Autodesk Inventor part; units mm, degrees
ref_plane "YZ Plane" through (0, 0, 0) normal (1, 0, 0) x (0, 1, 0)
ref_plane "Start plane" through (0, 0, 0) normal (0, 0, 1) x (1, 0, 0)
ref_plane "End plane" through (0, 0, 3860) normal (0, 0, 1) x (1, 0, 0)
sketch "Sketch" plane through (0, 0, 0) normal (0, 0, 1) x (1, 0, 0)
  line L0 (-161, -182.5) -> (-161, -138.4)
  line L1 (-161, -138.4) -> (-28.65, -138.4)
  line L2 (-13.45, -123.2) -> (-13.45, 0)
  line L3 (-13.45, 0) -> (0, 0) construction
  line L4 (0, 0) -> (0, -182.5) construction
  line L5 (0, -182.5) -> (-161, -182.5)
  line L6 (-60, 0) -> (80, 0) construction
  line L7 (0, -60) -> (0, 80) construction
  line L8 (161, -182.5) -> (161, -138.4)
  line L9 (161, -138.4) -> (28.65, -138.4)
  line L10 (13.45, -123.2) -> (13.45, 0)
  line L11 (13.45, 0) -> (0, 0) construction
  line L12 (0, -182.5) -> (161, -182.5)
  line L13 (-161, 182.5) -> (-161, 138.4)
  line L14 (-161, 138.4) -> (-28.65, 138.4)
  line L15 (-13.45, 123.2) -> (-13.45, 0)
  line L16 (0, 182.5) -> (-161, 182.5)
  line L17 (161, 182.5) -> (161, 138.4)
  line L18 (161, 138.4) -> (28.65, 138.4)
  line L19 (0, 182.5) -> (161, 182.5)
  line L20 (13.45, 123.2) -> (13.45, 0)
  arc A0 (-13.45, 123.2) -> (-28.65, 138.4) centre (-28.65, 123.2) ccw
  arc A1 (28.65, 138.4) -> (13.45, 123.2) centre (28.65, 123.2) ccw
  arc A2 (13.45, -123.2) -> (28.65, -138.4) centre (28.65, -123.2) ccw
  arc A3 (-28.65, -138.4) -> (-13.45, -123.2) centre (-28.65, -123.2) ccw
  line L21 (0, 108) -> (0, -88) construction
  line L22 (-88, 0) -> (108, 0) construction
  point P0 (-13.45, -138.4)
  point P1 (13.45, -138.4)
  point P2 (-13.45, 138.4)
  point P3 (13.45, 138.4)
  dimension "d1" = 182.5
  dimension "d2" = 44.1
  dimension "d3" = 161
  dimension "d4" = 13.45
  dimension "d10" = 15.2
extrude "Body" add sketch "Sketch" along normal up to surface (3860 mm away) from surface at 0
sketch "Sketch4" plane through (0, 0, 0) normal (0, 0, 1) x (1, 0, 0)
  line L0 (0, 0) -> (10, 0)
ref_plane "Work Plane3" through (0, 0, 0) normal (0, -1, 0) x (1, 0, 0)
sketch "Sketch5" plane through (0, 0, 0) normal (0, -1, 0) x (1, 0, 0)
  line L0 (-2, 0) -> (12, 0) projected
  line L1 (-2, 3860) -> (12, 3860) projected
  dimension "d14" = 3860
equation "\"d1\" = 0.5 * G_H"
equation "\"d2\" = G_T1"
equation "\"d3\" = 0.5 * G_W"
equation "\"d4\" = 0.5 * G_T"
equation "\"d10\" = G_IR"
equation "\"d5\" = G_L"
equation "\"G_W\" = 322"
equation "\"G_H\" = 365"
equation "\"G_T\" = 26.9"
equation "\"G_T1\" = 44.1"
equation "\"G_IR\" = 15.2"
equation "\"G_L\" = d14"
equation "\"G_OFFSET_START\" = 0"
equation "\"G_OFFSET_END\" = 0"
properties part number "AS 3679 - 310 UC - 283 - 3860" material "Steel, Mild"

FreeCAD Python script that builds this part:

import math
import FreeCAD as App
import Part
import Sketcher
Q = App.Units.Quantity

doc = App.newDocument("Part")
params = doc.addObject("Spreadsheet::Sheet", "Params")
for row, (alias, value) in enumerate([
    ("sketch1_radius", "15.2 mm"),
    ("sketch1_height", "44.1 mm"),
    ("pad1_length", "3860 mm"),
], start=1):
    params.set(f"A{row}", alias)
    params.set(f"B{row}", "=" + value)
    params.setAlias(f"B{row}", alias)

body = doc.addObject("PartDesign::Body", "Body")

# Sketch on XY plane
sketch1 = body.newObject("Sketcher::SketchObject", "Sketch")
sketch1.AttachmentSupport = (doc.getObject("XY_Plane"), [""])
sketch1.MapMode = "FlatFace"
sketch1.addGeometry([
    Part.LineSegment(App.Vector(-161, -138, 0), App.Vector(-161, -182, 0)),  # 0
    Part.LineSegment(App.Vector(-161, -182, 0), App.Vector(161, -182, 0)),  # 1
    Part.LineSegment(App.Vector(161, -182, 0), App.Vector(161, -138, 0)),  # 2
    Part.LineSegment(App.Vector(161, -138, 0), App.Vector(29, -138, 0)),  # 3
    Part.ArcOfCircle(Part.Circle(App.Vector(29, -123, 0), App.Vector(0, 0, 1), 15), math.radians(180), math.radians(270)),  # 4
    Part.LineSegment(App.Vector(13, -123, 0), App.Vector(13, 123, 0)),  # 5
    Part.ArcOfCircle(Part.Circle(App.Vector(29, 123, 0), App.Vector(0, 0, 1), 15), math.radians(90), math.radians(180)),  # 6
    Part.LineSegment(App.Vector(29, 138, 0), App.Vector(161, 138, 0)),  # 7
    Part.LineSegment(App.Vector(161, 138, 0), App.Vector(161, 182, 0)),  # 8
    Part.LineSegment(App.Vector(161, 182, 0), App.Vector(-161, 182, 0)),  # 9
    Part.LineSegment(App.Vector(-161, 182, 0), App.Vector(-161, 138, 0)),  # 10
    Part.LineSegment(App.Vector(-161, 138, 0), App.Vector(-29, 138, 0)),  # 11
    Part.ArcOfCircle(Part.Circle(App.Vector(-29, 123, 0), App.Vector(0, 0, 1), 15), math.radians(0), math.radians(90)),  # 12
    Part.LineSegment(App.Vector(-13, 123, 0), App.Vector(-13, -123, 0)),  # 13
    Part.ArcOfCircle(Part.Circle(App.Vector(-29, -123, 0), App.Vector(0, 0, 1), 15), math.radians(-90), math.radians(0)),  # 14
    Part.LineSegment(App.Vector(-29, -138, 0), App.Vector(-161, -138, 0)),  # 15
], False)
sketch1.addConstraint([
    Sketcher.Constraint("Coincident", 0, 2, 1, 1),
    Sketcher.Constraint("Coincident", 1, 2, 2, 1),
    Sketcher.Constraint("Coincident", 2, 2, 3, 1),
    Sketcher.Constraint("Tangent", 3, 2, 4, 2),
    Sketcher.Constraint("Tangent", 4, 1, 5, 1),
    Sketcher.Constraint("Tangent", 5, 2, 6, 2),
    Sketcher.Constraint("Tangent", 6, 1, 7, 1),
    Sketcher.Constraint("Coincident", 7, 2, 8, 1),
    Sketcher.Constraint("Coincident", 8, 2, 9, 1),
    Sketcher.Constraint("Coincident", 9, 2, 10, 1),
    Sketcher.Constraint("Coincident", 10, 2, 11, 1),
    Sketcher.Constraint("Tangent", 11, 2, 12, 2),
    Sketcher.Constraint("Tangent", 12, 1, 13, 1),
    Sketcher.Constraint("Tangent", 13, 2, 14, 2),
    Sketcher.Constraint("Tangent", 14, 1, 15, 1),
    Sketcher.Constraint("Coincident", 15, 2, 0, 1),
    Sketcher.Constraint("Vertical", 0),
    Sketcher.Constraint("Horizontal", 1),
    Sketcher.Constraint("Vertical", 2),
    Sketcher.Constraint("Horizontal", 3),
    Sketcher.Constraint("Vertical", 5),
    Sketcher.Constraint("Horizontal", 7),
    Sketcher.Constraint("Vertical", 8),
    Sketcher.Constraint("Horizontal", 9),
    Sketcher.Constraint("Vertical", 10),
    Sketcher.Constraint("Horizontal", 11),
    Sketcher.Constraint("Vertical", 13),
    Sketcher.Constraint("Horizontal", 15),
    Sketcher.Constraint("Equal", 4, 6),
    Sketcher.Constraint("Equal", 6, 12),
    Sketcher.Constraint("Equal", 12, 14),
    Sketcher.Constraint("Symmetric", 4, 3, 12, 3, -1, 1),
    Sketcher.Constraint("Symmetric", 0, 2, 8, 2, -1, 1),
    Sketcher.Constraint("Symmetric", 7, 2, 10, 2, -2),
    Sketcher.Constraint("Symmetric", 2, 2, 15, 2, -2),
    Sketcher.Constraint("Radius", 4, Q("15.2 mm")),
    Sketcher.Constraint("DistanceY", 0, 2, 0, 1, Q("44.1 mm")),
    Sketcher.Constraint("DistanceX", 0, 2, -1, 1, Q("161 mm")),
    Sketcher.Constraint("DistanceY", 0, 2, -1, 1, Q("182.5 mm")),
    Sketcher.Constraint("DistanceX", -1, 1, 4, 1, Q("13.45 mm")),
])
sketch1.setExpression("Constraints[35]", "Params.sketch1_radius")
sketch1.setExpression("Constraints[36]", "Params.sketch1_height")
pad1 = body.newObject("PartDesign::Pad", "Pad")
pad1.Profile = sketch1
pad1.setExpression("Length", "Params.pad1_length")

doc.recompute()
